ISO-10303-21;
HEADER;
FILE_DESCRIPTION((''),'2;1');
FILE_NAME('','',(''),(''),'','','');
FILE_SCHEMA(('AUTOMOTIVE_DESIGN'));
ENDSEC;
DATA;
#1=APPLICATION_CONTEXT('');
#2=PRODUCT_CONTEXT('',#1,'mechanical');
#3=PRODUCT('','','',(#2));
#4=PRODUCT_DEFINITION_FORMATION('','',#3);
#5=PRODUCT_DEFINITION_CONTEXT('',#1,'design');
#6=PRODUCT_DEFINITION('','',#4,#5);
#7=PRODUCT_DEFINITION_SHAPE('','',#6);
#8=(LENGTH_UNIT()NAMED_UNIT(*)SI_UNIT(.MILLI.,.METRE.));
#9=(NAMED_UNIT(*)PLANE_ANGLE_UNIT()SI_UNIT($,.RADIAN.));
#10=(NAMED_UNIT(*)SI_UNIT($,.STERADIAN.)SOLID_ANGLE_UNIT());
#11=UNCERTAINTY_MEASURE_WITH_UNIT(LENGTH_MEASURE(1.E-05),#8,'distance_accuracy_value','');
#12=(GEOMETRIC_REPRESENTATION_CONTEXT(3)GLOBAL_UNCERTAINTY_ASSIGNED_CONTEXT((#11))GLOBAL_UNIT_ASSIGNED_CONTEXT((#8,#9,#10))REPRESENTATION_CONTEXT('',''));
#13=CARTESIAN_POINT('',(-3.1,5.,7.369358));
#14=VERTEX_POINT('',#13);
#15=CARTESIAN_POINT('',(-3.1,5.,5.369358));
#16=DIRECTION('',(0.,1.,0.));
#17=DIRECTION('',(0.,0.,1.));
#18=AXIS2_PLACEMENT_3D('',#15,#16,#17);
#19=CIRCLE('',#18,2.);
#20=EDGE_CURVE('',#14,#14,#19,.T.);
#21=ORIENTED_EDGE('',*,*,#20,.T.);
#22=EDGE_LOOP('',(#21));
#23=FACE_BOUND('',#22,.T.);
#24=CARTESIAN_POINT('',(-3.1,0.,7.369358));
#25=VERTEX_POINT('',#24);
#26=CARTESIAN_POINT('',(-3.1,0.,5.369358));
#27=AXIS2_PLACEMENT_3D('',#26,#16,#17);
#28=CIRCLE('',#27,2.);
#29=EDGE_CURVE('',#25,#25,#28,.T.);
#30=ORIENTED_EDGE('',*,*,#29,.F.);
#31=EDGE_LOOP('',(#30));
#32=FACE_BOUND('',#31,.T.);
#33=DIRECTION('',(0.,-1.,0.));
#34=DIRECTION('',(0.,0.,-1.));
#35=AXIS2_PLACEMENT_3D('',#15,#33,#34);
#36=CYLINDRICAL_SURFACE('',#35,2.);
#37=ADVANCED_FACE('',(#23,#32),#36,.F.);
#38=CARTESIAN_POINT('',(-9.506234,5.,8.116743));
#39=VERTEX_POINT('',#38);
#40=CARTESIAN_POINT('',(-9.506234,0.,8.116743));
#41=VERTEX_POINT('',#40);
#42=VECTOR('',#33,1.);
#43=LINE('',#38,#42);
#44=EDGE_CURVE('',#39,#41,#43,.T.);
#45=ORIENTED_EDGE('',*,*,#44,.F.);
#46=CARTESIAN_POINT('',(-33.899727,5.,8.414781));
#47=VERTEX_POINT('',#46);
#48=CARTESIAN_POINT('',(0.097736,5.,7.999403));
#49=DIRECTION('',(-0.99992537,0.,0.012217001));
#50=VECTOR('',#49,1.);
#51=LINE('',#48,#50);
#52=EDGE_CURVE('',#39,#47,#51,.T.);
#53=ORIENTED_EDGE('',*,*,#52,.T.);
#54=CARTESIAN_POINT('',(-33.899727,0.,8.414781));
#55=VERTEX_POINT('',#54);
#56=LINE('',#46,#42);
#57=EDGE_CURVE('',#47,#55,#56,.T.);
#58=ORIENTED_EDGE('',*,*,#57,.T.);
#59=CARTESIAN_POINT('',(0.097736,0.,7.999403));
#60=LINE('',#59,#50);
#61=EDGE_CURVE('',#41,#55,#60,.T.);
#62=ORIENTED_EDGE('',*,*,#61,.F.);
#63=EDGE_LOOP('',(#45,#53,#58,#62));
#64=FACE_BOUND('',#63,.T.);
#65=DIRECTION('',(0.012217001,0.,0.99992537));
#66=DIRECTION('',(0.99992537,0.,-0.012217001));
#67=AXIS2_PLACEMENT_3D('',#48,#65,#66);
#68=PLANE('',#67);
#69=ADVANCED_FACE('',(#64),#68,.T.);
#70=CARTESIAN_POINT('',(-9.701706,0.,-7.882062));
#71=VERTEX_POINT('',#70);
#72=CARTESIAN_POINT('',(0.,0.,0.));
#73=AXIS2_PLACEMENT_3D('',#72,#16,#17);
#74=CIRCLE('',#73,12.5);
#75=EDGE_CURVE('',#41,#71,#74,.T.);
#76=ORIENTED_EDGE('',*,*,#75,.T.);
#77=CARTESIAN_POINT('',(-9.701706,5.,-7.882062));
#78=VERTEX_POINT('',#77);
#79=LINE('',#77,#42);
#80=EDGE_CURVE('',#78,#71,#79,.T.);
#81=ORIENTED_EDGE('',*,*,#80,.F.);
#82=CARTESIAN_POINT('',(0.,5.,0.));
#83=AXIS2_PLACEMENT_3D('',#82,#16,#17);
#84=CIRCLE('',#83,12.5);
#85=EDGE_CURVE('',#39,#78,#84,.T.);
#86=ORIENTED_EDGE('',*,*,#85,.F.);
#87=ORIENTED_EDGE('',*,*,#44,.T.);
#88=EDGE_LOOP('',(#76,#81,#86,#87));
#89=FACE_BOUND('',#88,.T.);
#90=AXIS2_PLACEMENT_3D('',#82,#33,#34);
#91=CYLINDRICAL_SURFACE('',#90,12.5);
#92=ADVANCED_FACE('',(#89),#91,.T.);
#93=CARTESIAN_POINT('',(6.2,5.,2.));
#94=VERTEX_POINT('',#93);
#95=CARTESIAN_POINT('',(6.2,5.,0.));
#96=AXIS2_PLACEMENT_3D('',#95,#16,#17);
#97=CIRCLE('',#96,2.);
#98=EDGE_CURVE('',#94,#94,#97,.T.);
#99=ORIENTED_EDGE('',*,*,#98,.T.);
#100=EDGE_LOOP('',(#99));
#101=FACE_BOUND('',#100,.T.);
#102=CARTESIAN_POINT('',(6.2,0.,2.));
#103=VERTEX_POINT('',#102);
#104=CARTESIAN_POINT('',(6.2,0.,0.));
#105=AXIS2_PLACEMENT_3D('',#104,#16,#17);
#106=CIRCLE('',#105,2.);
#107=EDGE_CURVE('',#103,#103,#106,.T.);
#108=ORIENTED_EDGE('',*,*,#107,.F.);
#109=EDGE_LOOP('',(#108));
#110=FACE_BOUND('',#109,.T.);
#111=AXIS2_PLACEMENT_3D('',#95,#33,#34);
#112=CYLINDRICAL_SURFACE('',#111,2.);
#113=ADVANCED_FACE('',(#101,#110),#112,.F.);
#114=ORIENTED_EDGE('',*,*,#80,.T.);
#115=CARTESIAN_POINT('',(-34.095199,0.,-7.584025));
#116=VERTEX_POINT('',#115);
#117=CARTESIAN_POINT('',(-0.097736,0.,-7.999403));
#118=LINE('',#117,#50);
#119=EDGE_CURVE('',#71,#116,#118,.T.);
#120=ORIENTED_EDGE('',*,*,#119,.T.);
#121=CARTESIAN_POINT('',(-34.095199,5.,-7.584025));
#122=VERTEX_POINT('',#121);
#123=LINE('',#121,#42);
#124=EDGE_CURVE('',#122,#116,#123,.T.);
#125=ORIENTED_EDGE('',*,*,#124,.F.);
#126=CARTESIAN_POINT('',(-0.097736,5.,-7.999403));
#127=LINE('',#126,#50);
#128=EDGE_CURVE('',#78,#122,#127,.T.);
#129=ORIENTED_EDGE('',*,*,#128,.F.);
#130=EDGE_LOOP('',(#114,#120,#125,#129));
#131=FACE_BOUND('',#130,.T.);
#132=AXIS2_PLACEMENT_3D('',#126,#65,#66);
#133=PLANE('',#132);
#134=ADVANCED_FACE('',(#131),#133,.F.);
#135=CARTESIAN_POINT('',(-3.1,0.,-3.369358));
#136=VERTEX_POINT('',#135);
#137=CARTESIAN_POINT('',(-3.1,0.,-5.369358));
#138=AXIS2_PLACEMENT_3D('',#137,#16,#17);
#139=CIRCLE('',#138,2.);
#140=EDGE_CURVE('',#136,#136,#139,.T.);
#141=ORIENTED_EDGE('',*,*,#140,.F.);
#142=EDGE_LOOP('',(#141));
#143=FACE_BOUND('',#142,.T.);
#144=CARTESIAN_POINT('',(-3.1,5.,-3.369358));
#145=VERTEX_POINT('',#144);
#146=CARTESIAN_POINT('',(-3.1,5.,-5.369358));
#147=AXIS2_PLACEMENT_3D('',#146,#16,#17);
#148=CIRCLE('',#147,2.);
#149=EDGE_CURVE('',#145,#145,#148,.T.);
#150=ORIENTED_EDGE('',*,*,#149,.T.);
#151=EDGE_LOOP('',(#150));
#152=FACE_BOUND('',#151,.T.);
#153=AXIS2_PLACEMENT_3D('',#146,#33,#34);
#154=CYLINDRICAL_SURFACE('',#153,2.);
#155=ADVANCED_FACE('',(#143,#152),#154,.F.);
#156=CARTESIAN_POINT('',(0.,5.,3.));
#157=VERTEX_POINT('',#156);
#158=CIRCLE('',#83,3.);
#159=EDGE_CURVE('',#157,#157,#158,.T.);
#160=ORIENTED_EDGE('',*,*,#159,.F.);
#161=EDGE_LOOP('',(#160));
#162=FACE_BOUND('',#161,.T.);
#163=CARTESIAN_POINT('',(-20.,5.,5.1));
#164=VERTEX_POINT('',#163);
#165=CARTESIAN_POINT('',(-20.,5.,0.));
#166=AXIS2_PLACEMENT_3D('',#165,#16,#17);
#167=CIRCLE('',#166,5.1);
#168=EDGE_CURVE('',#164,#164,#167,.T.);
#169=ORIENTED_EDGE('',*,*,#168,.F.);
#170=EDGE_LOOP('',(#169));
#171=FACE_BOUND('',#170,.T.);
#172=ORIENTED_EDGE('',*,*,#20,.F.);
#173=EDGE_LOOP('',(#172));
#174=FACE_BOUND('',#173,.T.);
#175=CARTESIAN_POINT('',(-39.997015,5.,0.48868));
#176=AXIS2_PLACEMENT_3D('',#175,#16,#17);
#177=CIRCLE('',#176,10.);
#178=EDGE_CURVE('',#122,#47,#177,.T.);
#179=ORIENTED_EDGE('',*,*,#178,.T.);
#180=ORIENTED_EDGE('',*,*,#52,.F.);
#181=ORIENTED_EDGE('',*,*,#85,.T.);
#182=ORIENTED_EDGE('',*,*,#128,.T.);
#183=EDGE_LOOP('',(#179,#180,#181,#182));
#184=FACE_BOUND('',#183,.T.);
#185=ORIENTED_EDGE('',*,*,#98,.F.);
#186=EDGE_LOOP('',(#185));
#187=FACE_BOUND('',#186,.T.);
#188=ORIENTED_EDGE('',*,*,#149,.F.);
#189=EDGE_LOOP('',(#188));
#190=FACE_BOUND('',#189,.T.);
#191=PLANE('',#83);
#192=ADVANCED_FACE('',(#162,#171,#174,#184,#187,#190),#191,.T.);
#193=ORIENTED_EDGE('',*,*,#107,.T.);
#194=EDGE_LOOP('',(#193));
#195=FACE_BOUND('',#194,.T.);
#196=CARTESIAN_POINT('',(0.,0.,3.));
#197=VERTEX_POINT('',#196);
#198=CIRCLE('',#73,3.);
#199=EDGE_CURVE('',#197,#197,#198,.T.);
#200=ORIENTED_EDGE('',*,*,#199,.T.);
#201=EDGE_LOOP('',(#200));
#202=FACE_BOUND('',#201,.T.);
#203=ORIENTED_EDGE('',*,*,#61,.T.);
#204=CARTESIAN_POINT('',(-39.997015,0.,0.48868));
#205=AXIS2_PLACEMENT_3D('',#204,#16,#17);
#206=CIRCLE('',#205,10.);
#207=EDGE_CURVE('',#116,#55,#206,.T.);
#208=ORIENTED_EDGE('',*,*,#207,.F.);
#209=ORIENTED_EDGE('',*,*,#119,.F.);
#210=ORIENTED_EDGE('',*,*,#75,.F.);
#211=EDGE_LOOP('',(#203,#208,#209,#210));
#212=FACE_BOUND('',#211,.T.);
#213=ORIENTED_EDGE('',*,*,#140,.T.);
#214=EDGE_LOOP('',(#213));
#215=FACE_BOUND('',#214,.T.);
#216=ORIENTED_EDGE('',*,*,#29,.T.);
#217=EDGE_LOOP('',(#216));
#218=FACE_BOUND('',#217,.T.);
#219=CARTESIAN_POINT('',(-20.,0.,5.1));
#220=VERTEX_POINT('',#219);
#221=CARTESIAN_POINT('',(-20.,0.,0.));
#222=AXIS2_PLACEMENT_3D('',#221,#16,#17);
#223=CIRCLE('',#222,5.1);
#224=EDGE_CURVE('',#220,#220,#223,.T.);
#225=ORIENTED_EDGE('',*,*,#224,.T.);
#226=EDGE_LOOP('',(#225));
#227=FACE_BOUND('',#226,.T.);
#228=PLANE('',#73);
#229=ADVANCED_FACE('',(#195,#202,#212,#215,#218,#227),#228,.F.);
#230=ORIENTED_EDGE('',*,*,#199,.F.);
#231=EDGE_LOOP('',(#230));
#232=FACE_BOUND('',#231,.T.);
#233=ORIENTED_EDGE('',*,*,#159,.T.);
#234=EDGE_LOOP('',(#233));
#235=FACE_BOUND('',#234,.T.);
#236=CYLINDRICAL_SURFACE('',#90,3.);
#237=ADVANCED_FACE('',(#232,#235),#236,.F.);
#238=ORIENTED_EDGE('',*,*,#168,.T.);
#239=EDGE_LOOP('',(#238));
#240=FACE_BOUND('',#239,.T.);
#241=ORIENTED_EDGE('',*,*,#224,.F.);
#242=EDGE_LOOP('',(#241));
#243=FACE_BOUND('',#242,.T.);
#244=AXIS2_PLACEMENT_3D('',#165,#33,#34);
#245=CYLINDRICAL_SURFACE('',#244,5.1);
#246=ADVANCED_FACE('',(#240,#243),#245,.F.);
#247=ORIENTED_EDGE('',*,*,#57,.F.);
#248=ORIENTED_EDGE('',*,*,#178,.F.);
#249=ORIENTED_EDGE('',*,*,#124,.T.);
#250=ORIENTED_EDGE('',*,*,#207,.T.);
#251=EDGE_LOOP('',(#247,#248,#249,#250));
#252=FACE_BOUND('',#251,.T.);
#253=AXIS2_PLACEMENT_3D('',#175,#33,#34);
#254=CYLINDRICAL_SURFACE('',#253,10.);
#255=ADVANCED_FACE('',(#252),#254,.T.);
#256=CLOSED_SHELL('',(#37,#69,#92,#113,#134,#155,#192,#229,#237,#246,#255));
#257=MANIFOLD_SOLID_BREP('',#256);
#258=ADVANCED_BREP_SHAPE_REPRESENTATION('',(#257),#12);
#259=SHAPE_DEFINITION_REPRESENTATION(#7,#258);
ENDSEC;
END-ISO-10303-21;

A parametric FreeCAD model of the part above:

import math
import FreeCAD as App
import Part
import Sketcher
Q = App.Units.Quantity

doc = App.newDocument("Part")
body = doc.addObject("PartDesign::Body", "Body")

# Sketch on XZ plane
sketch1 = body.newObject("Sketcher::SketchObject", "Sketch")
sketch1.AttachmentSupport = (doc.getObject("XZ_Plane"), [""])
sketch1.MapMode = "FlatFace"
sketch1.addGeometry([
    Part.LineSegment(App.Vector(-33.9, 8.4, 0), App.Vector(-9.5, 8.1, 0)),  # 0
    Part.ArcOfCircle(Part.Circle(App.Vector(0, 0, 0), App.Vector(0, 0, 1), 12.5), math.radians(-141), math.radians(140)),  # 1
    Part.LineSegment(App.Vector(-9.7, -7.9, 0), App.Vector(-34.1, -7.6, 0)),  # 2
    Part.ArcOfCircle(Part.Circle(App.Vector(-40, 0.5, 0), App.Vector(0, 0, 1), 10), math.radians(52), math.radians(306)),  # 3
    Part.Circle(App.Vector(-3.1, 5.4, 0), App.Vector(0, 0, 1), 2),  # 4
    Part.Circle(App.Vector(-20, 0, 0), App.Vector(0, 0, 1), 5.1),  # 5
    Part.Circle(App.Vector(0, 0, 0), App.Vector(0, 0, 1), 3),  # 6
    Part.Circle(App.Vector(6.2, 0, 0), App.Vector(0, 0, 1), 2),  # 7
    Part.Circle(App.Vector(-3.1, -5.4, 0), App.Vector(0, 0, 1), 2),  # 8
], False)
sketch1.addConstraint([
    Sketcher.Constraint("Coincident", 0, 2, 1, 2),
    Sketcher.Constraint("Coincident", 1, 1, 2, 1),
    Sketcher.Constraint("Coincident", 2, 2, 3, 2),
    Sketcher.Constraint("Coincident", 3, 1, 0, 1),
    Sketcher.Constraint("Coincident", 1, 3, -1, 1),
    Sketcher.Constraint("Coincident", 6, 3, -1, 1),
    Sketcher.Constraint("Equal", 4, 7),
    Sketcher.Constraint("Equal", 7, 8),
    Sketcher.Constraint("Symmetric", 4, 3, 8, 3, -1),
    Sketcher.Constraint("PointOnObject", 5, 3, -1),
    Sketcher.Constraint("PointOnObject", 7, 3, -1),
    Sketcher.Constraint("Parallel", 0, 2),
    Sketcher.Constraint("Equal", 0, 2),
    Sketcher.Constraint("Diameter", 4, 4.0),
    Sketcher.Constraint("Diameter", 6, 6.0),
    Sketcher.Constraint("Radius", 3, 10.0),
    Sketcher.Constraint("Diameter", 5, 10.2),
    Sketcher.Constraint("Radius", 1, 12.5),
    Sketcher.Constraint("DistanceX", 5, 3, -1, 1, 20.0),
    Sketcher.Constraint("Angle", 0, Q("-0.7 deg")),
    Sketcher.Constraint("DistanceX", 4, 3, -1, 1, 3.1),
    Sketcher.Constraint("DistanceX", -1, 1, 7, 3, 6.2),
    Sketcher.Constraint("DistanceX", 2, 2, -1, 1, 34.095199),
    Sketcher.Constraint("DistanceY", 8, 3, 0, 2, 13.486101),
    Sketcher.Constraint("DistanceY", 3, 3, 3, 1, 7.926101),
    Sketcher.Constraint("DistanceY", -1, 1, 3, 3, 0.48868),
])
pad1 = body.newObject("PartDesign::Pad", "Pad")
pad1.Profile = sketch1
pad1.Length = 5
pad1.Reversed = True

doc.recompute()
